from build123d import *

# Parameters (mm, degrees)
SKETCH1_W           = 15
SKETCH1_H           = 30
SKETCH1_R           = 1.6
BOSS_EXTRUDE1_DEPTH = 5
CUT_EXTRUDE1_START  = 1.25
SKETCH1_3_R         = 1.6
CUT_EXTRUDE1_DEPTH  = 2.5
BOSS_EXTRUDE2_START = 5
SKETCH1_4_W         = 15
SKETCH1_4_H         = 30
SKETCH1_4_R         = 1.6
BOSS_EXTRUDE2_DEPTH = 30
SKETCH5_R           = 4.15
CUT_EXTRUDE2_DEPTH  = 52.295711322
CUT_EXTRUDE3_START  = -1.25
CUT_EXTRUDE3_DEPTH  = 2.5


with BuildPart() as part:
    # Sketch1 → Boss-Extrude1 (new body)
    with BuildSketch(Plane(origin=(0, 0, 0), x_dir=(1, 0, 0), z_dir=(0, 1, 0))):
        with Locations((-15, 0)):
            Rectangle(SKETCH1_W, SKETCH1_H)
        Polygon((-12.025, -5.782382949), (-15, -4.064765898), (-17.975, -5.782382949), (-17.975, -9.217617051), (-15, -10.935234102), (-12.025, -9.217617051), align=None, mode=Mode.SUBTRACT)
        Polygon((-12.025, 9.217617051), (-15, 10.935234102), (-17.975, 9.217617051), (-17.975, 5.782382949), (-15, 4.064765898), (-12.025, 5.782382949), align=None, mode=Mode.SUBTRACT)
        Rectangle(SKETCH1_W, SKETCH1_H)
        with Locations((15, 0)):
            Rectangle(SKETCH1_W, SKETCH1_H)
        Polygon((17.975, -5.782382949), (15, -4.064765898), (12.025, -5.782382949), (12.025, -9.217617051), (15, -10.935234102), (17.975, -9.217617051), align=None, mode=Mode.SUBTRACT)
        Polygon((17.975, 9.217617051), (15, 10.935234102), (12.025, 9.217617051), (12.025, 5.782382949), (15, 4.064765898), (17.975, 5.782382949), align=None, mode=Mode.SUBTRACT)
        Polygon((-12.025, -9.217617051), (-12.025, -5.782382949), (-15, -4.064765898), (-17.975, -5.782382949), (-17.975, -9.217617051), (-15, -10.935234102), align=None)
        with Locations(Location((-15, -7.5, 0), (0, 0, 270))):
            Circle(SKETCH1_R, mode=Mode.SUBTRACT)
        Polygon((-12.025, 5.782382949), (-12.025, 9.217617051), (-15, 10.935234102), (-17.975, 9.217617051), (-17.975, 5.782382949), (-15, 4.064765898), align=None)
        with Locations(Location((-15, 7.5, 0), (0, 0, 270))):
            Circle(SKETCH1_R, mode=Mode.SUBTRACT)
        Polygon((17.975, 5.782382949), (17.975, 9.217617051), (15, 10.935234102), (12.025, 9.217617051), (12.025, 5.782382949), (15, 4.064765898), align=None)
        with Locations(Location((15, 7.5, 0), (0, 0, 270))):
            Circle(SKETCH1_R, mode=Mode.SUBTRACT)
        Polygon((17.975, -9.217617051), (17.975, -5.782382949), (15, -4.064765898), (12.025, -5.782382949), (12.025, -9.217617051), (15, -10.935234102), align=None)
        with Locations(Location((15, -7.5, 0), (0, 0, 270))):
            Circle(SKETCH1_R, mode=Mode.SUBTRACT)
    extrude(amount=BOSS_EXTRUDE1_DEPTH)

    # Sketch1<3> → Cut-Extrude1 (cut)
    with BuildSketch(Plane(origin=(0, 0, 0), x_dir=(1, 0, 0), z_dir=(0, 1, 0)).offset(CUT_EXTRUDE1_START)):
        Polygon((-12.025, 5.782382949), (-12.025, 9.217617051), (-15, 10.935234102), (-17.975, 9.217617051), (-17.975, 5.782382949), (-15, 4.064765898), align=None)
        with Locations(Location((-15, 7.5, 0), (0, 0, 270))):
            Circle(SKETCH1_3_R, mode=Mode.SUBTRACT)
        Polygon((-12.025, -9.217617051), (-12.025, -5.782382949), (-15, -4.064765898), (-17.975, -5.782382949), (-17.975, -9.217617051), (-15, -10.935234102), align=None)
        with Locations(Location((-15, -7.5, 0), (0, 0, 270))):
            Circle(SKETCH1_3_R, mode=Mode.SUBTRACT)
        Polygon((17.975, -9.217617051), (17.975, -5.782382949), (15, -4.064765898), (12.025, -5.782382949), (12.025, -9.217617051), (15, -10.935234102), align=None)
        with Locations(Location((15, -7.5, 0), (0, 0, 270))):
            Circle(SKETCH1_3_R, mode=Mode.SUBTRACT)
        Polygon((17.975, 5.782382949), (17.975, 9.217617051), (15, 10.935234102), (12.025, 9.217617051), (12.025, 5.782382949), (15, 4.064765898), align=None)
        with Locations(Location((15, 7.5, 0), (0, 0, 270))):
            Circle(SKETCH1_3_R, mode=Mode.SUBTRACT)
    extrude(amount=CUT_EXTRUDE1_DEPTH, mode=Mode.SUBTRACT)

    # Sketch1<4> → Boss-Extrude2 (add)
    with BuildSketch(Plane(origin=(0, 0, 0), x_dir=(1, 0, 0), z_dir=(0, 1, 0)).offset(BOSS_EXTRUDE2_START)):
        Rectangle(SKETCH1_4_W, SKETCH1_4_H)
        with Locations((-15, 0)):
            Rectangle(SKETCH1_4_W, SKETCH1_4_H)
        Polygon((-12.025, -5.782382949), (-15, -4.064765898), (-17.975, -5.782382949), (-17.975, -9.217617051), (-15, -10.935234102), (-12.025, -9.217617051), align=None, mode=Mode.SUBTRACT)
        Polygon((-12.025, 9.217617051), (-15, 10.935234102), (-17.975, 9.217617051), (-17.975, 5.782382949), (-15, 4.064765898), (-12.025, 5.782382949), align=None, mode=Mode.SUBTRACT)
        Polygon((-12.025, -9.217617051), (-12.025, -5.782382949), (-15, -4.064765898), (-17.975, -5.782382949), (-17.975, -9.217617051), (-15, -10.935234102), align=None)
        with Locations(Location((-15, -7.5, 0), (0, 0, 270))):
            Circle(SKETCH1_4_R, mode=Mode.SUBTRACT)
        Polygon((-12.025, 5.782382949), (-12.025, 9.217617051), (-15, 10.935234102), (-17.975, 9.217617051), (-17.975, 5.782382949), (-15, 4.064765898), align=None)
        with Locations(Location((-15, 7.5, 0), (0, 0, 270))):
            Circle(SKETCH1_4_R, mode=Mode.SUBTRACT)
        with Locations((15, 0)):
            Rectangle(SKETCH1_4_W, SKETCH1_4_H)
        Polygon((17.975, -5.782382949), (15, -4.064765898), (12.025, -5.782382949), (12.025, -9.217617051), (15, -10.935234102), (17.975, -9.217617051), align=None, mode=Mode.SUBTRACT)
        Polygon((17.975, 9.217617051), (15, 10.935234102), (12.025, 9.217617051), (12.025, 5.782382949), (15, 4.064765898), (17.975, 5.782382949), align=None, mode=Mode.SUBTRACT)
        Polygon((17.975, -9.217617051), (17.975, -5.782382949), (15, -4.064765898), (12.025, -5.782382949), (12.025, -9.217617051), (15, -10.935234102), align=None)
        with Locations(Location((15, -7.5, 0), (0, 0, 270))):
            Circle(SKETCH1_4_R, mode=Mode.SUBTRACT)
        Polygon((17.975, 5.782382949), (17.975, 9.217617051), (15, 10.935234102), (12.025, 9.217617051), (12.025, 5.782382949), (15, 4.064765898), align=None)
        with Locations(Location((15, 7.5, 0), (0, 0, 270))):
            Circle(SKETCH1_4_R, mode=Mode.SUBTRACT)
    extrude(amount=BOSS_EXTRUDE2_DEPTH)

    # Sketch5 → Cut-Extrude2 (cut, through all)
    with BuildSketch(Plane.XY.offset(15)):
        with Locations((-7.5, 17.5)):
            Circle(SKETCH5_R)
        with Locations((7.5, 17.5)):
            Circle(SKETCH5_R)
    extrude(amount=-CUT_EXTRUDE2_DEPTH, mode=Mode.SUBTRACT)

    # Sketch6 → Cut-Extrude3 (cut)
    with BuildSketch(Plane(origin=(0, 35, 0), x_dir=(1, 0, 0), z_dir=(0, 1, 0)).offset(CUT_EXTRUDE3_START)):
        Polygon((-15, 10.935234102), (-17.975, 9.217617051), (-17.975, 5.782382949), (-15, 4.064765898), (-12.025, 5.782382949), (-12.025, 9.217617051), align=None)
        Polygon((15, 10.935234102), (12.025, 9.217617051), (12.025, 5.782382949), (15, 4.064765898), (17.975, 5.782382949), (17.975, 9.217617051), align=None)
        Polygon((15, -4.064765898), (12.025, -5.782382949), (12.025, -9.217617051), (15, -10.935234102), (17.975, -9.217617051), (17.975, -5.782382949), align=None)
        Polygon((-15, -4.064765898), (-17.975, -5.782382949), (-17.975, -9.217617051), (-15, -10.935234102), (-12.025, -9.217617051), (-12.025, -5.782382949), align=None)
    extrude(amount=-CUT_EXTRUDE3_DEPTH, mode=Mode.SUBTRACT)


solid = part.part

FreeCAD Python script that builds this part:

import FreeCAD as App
import Part
import Sketcher

V = App.Vector
Q = App.Units.Quantity


def add_polygon(sketch, points):
    """Adds a closed chain of lines whose ends are joined by coincident constraints."""
    first, n = sketch.GeometryCount, len(points)
    for a, b in zip(points, points[1:] + points[:1]):
        sketch.addGeometry(Part.LineSegment(App.Vector(*a, 0), App.Vector(*b, 0)), False)
    for i in range(n):
        sketch.addConstraint(Sketcher.Constraint("Coincident", first + i, 2, first + (i + 1) % n, 1))

doc = App.newDocument("Part")
body = doc.addObject("PartDesign::Body", "Body")

# Sketch on XZ plane
sketch1 = doc.addObject("Sketcher::SketchObject", "Sketch")
body.addObject(sketch1)
sketch1.AttachmentSupport = (doc.XZ_Plane, [""])
sketch1.MapMode = "FlatFace"
add_polygon(sketch1, [(-22.5, -15), (-22.5, 15), (22.5, 15), (22.5, -15)])  # lines 0-3
sketch1.addGeometry(Part.Circle(V(-15, 7.5, 0), V(0, 0, 1), 1.6), False)  # 4
sketch1.addGeometry(Part.Circle(V(15, 7.5, 0), V(0, 0, 1), 1.6), False)  # 5
sketch1.addGeometry(Part.Circle(V(-15, -7.5, 0), V(0, 0, 1), 1.6), False)  # 6
sketch1.addGeometry(Part.Circle(V(15, -7.5, 0), V(0, 0, 1), 1.6), False)  # 7
sketch1.addConstraint(Sketcher.Constraint("Vertical", 0))
sketch1.addConstraint(Sketcher.Constraint("Horizontal", 1))
sketch1.addConstraint(Sketcher.Constraint("Vertical", 2))
sketch1.addConstraint(Sketcher.Constraint("Horizontal", 3))
sketch1.addConstraint(Sketcher.Constraint("Equal", 4, 5))
sketch1.addConstraint(Sketcher.Constraint("Equal", 5, 6))
sketch1.addConstraint(Sketcher.Constraint("Equal", 6, 7))
sketch1.addConstraint(Sketcher.Constraint("Symmetric", 5, 3, 6, 3, -1, 1))
sketch1.addConstraint(Sketcher.Constraint("Symmetric", 4, 3, 7, 3, -1, 1))
sketch1.addConstraint(Sketcher.Constraint("Symmetric", 0, 2, 2, 2, -1, 1))
sketch1.addConstraint(Sketcher.Constraint("Symmetric", 4, 3, 5, 3, -2))
sketch1.addConstraint(Sketcher.Constraint("Diameter", 4, Q("3.2 mm")))
sketch1.addConstraint(Sketcher.Constraint("DistanceX", 1, 1, 1, 2, Q("45 mm")))
sketch1.addConstraint(Sketcher.Constraint("DistanceY", 0, 1, 0, 2, Q("30 mm")))
sketch1.addConstraint(Sketcher.Constraint("DistanceX", 4, 3, -1, 1, Q("15 mm")))
sketch1.addConstraint(Sketcher.Constraint("DistanceY", 6, 3, 4, 3, Q("15 mm")))
pad1 = doc.addObject("PartDesign::Pad", "Pad")
body.addObject(pad1)
pad1.Profile = sketch1
pad1.Length = 5
pad1.Reversed = True

# Sketch on XZ plane
sketch2 = doc.addObject("Sketcher::SketchObject", "Sketch001")
body.addObject(sketch2)
sketch2.AttachmentSupport = (doc.XZ_Plane, [""])
sketch2.MapMode = "FlatFace"
sketch2.AttachmentOffset = App.Placement(V(0, 0, -1.25), App.Rotation())
add_polygon(sketch2, [(-12.025, -5.782383), (-12.025, -9.217617), (-15, -10.935234), (-17.975, -9.217617), (-17.975, -5.782383), (-15, -4.064766)])  # lines 0-5
sketch2.addGeometry(Part.Circle(V(-15, -7.5, 0), V(0, 0, 1), 1.6), False)  # 6
add_polygon(sketch2, [(-12.025, 9.217617), (-12.025, 5.782383), (-15, 4.064766), (-17.975, 5.782383), (-17.975, 9.217617), (-15, 10.935234)])  # lines 7-12
sketch2.addGeometry(Part.Circle(V(-15, 7.5, 0), V(0, 0, 1), 1.6), False)  # 13
add_polygon(sketch2, [(17.975, 9.217617), (17.975, 5.782383), (15, 4.064766), (12.025, 5.782383), (12.025, 9.217617), (15, 10.935234)])  # lines 14-19
sketch2.addGeometry(Part.Circle(V(15, 7.5, 0), V(0, 0, 1), 1.6), False)  # 20
add_polygon(sketch2, [(17.975, -5.782383), (17.975, -9.217617), (15, -10.935234), (12.025, -9.217617), (12.025, -5.782383), (15, -4.064766)])  # lines 21-26
sketch2.addGeometry(Part.Circle(V(15, -7.5, 0), V(0, 0, 1), 1.6), False)  # 27
sketch2.addConstraint(Sketcher.Constraint("Vertical", 0))
sketch2.addConstraint(Sketcher.Constraint("Vertical", 3))
sketch2.addConstraint(Sketcher.Constraint("Vertical", 7))
sketch2.addConstraint(Sketcher.Constraint("Vertical", 10))
sketch2.addConstraint(Sketcher.Constraint("Vertical", 14))
sketch2.addConstraint(Sketcher.Constraint("Vertical", 17))
sketch2.addConstraint(Sketcher.Constraint("Vertical", 21))
sketch2.addConstraint(Sketcher.Constraint("Vertical", 24))
sketch2.addConstraint(Sketcher.Constraint("Equal", 6, 13))
sketch2.addConstraint(Sketcher.Constraint("Equal", 13, 20))
sketch2.addConstraint(Sketcher.Constraint("Equal", 20, 27))
sketch2.addConstraint(Sketcher.Constraint("Symmetric", 6, 3, 20, 3, -1, 1))
sketch2.addConstraint(Sketcher.Constraint("Symmetric", 13, 3, 27, 3, -1, 1))
sketch2.addConstraint(Sketcher.Constraint("Symmetric", 3, 2, 14, 2, -1, 1))
sketch2.addConstraint(Sketcher.Constraint("Symmetric", 4, 2, 15, 2, -1, 1))
sketch2.addConstraint(Sketcher.Constraint("Symmetric", 5, 2, 16, 2, -1, 1))
sketch2.addConstraint(Sketcher.Constraint("Symmetric", 1, 2, 18, 2, -1, 1))
sketch2.addConstraint(Sketcher.Constraint("Symmetric", 10, 2, 21, 2, -1, 1))
sketch2.addConstraint(Sketcher.Constraint("Symmetric", 11, 2, 22, 2, -1, 1))
sketch2.addConstraint(Sketcher.Constraint("Symmetric", 12, 2, 23, 2, -1, 1))
sketch2.addConstraint(Sketcher.Constraint("Symmetric", 8, 2, 25, 2, -1, 1))
sketch2.addConstraint(Sketcher.Constraint("Symmetric", 13, 3, 20, 3, -2))
sketch2.addConstraint(Sketcher.Constraint("Symmetric", 9, 2, 14, 2, -2))
sketch2.addConstraint(Sketcher.Constraint("Symmetric", 8, 2, 15, 2, -2))
sketch2.addConstraint(Sketcher.Constraint("Symmetric", 7, 2, 16, 2, -2))
sketch2.addConstraint(Sketcher.Constraint("Symmetric", 11, 2, 18, 2, -2))
sketch2.addConstraint(Sketcher.Constraint("Parallel", 1, 4))
sketch2.addConstraint(Sketcher.Constraint("Parallel", 2, 5))
sketch2.addConstraint(Sketcher.Constraint("Parallel", 4, 8))
sketch2.addConstraint(Sketcher.Constraint("Parallel", 8, 11))
sketch2.addConstraint(Sketcher.Constraint("Parallel", 9, 12))
sketch2.addConstraint(Sketcher.Constraint("Parallel", 15, 18))
sketch2.addConstraint(Sketcher.Constraint("Parallel", 16, 19))
sketch2.addConstraint(Sketcher.Constraint("Parallel", 22, 25))
sketch2.addConstraint(Sketcher.Constraint("Parallel", 23, 26))
sketch2.addConstraint(Sketcher.Constraint("Horizontal", 0, 2, 2, 2))
sketch2.addConstraint(Sketcher.Constraint("Horizontal", 3, 2, 5, 2))
sketch2.addConstraint(Sketcher.Constraint("Vertical", 13, 3, 1, 2))
sketch2.addConstraint(Sketcher.Constraint("Diameter", 6, Q("3.2 mm")))
sketch2.addConstraint(Sketcher.Constraint("Angle", 1, Q("-150 deg")))
sketch2.addConstraint(Sketcher.Constraint("DistanceX", 6, 3, -1, 1, Q("15 mm")))
sketch2.addConstraint(Sketcher.Constraint("DistanceY", 6, 3, 13, 3, Q("15 mm")))
sketch2.addConstraint(Sketcher.Constraint("DistanceY", 21, 2, 14, 2, Q("15 mm")))
sketch2.addConstraint(Sketcher.Constraint("DistanceX", 2, 2, 0, 2, Q("5.95 mm")))
sketch2.addConstraint(Sketcher.Constraint("DistanceY", 0, 2, 0, 1, Q("3.435234 mm")))
pocket1 = doc.addObject("PartDesign::Pocket", "Pocket")
body.addObject(pocket1)
pocket1.Profile = sketch2
pocket1.Length = 2.5

# Sketch on XZ plane
sketch3 = doc.addObject("Sketcher::SketchObject", "Sketch002")
body.addObject(sketch3)
sketch3.AttachmentSupport = (doc.XZ_Plane, [""])
sketch3.MapMode = "FlatFace"
sketch3.AttachmentOffset = App.Placement(V(0, 0, -5), App.Rotation())
add_polygon(sketch3, [(-22.5, 15), (22.5, 15), (22.5, -15), (-22.5, -15)])  # lines 0-3
sketch3.addGeometry(Part.Circle(V(-15, 7.5, 0), V(0, 0, 1), 1.6), False)  # 4
sketch3.addGeometry(Part.Circle(V(15, 7.5, 0), V(0, 0, 1), 1.6), False)  # 5
sketch3.addGeometry(Part.Circle(V(-15, -7.5, 0), V(0, 0, 1), 1.6), False)  # 6
sketch3.addGeometry(Part.Circle(V(15, -7.5, 0), V(0, 0, 1), 1.6), False)  # 7
sketch3.addConstraint(Sketcher.Constraint("Horizontal", 0))
sketch3.addConstraint(Sketcher.Constraint("Vertical", 1))
sketch3.addConstraint(Sketcher.Constraint("Horizontal", 2))
sketch3.addConstraint(Sketcher.Constraint("Vertical", 3))
sketch3.addConstraint(Sketcher.Constraint("Equal", 4, 5))
sketch3.addConstraint(Sketcher.Constraint("Equal", 5, 6))
sketch3.addConstraint(Sketcher.Constraint("Equal", 6, 7))
sketch3.addConstraint(Sketcher.Constraint("Symmetric", 5, 3, 6, 3, -1, 1))
sketch3.addConstraint(Sketcher.Constraint("Symmetric", 4, 3, 7, 3, -1, 1))
sketch3.addConstraint(Sketcher.Constraint("Symmetric", 0, 2, 2, 2, -1, 1))
sketch3.addConstraint(Sketcher.Constraint("Symmetric", 4, 3, 5, 3, -2))
sketch3.addConstraint(Sketcher.Constraint("Diameter", 4, Q("3.2 mm")))
sketch3.addConstraint(Sketcher.Constraint("DistanceX", 0, 1, 0, 2, Q("45 mm")))
sketch3.addConstraint(Sketcher.Constraint("DistanceY", 1, 2, 1, 1, Q("30 mm")))
sketch3.addConstraint(Sketcher.Constraint("DistanceX", 4, 3, -1, 1, Q("15 mm")))
sketch3.addConstraint(Sketcher.Constraint("DistanceY", 6, 3, 4, 3, Q("15 mm")))
pad2 = doc.addObject("PartDesign::Pad", "Pad001")
body.addObject(pad2)
pad2.Profile = sketch3
pad2.Length = 30
pad2.Reversed = True

# Sketch on XY plane
sketch4 = doc.addObject("Sketcher::SketchObject", "Sketch003")
body.addObject(sketch4)
sketch4.AttachmentSupport = (doc.XY_Plane, [""])
sketch4.MapMode = "FlatFace"
sketch4.AttachmentOffset = App.Placement(V(0, 0, 15), App.Rotation())
sketch4.addGeometry(Part.Circle(V(-7.5, 17.5, 0), V(0, 0, 1), 4.15), False)
sketch4.addGeometry(Part.Circle(V(7.5, 17.5, 0), V(0, 0, 1), 4.15), False)
sketch4.addConstraint(Sketcher.Constraint("Equal", 0, 1))
sketch4.addConstraint(Sketcher.Constraint("Symmetric", 0, 3, 1, 3, -2))
sketch4.addConstraint(Sketcher.Constraint("Diameter", 0, Q("8.3 mm")))
sketch4.addConstraint(Sketcher.Constraint("DistanceX", 0, 3, 1, 3, Q("15 mm")))
sketch4.addConstraint(Sketcher.Constraint("DistanceY", -1, 1, 0, 3, Q("17.5 mm")))
pocket2 = doc.addObject("PartDesign::Pocket", "Pocket001")
body.addObject(pocket2)
pocket2.Profile = sketch4
pocket2.Type = "ThroughAll"

# Sketch on XZ plane
sketch5 = doc.addObject("Sketcher::SketchObject", "Sketch004")
body.addObject(sketch5)
sketch5.AttachmentSupport = (doc.XZ_Plane, [""])
sketch5.MapMode = "FlatFace"
sketch5.AttachmentOffset = App.Placement(V(0, 0, -33.75), App.Rotation())
add_polygon(sketch5, [(-15, -10.935234), (-17.975, -9.217617), (-17.975, -5.782383), (-15, -4.064766), (-12.025, -5.782383), (-12.025, -9.217617)])  # lines 0-5
add_polygon(sketch5, [(15, -10.935234), (12.025, -9.217617), (12.025, -5.782383), (15, -4.064766), (17.975, -5.782383), (17.975, -9.217617)])  # lines 6-11
add_polygon(sketch5, [(15, 4.064766), (12.025, 5.782383), (12.025, 9.217617), (15, 10.935234), (17.975, 9.217617), (17.975, 5.782383)])  # lines 12-17
add_polygon(sketch5, [(-15, 4.064766), (-17.975, 5.782383), (-17.975, 9.217617), (-15, 10.935234), (-12.025, 9.217617), (-12.025, 5.782383)])  # lines 18-23
sketch5.addConstraint(Sketcher.Constraint("Vertical", 1))
sketch5.addConstraint(Sketcher.Constraint("Vertical", 4))
sketch5.addConstraint(Sketcher.Constraint("Vertical", 7))
sketch5.addConstraint(Sketcher.Constraint("Vertical", 10))
sketch5.addConstraint(Sketcher.Constraint("Vertical", 13))
sketch5.addConstraint(Sketcher.Constraint("Vertical", 16))
sketch5.addConstraint(Sketcher.Constraint("Vertical", 19))
sketch5.addConstraint(Sketcher.Constraint("Vertical", 22))
sketch5.addConstraint(Sketcher.Constraint("Symmetric", 3, 2, 12, 2, -1, 1))
sketch5.addConstraint(Sketcher.Constraint("Symmetric", 5, 2, 14, 2, -1, 1))
sketch5.addConstraint(Sketcher.Constraint("Symmetric", 0, 2, 15, 2, -1, 1))
sketch5.addConstraint(Sketcher.Constraint("Symmetric", 2, 2, 17, 2, -1, 1))
sketch5.addConstraint(Sketcher.Constraint("Symmetric", 9, 2, 18, 2, -1, 1))
sketch5.addConstraint(Sketcher.Constraint("Symmetric", 11, 2, 20, 2, -1, 1))
sketch5.addConstraint(Sketcher.Constraint("Symmetric", 6, 2, 21, 2, -1, 1))
sketch5.addConstraint(Sketcher.Constraint("Symmetric", 8, 2, 23, 2, -1, 1))
sketch5.addConstraint(Sketcher.Constraint("Symmetric", 4, 2, 6, 2, -2))
sketch5.addConstraint(Sketcher.Constraint("Symmetric", 2, 2, 8, 2, -2))
sketch5.addConstraint(Sketcher.Constraint("Symmetric", 1, 2, 9, 2, -2))
sketch5.addConstraint(Sketcher.Constraint("Symmetric", 5, 2, 11, 2, -2))
sketch5.addConstraint(Sketcher.Constraint("Parallel", 0, 3))
sketch5.addConstraint(Sketcher.Constraint("Parallel", 2, 5))
sketch5.addConstraint(Sketcher.Constraint("Parallel", 3, 6))
sketch5.addConstraint(Sketcher.Constraint("Parallel", 5, 8))
sketch5.addConstraint(Sketcher.Constraint("Parallel", 8, 11))
sketch5.addConstraint(Sketcher.Constraint("Parallel", 11, 14))
sketch5.addConstraint(Sketcher.Constraint("Parallel", 14, 17))
sketch5.addConstraint(Sketcher.Constraint("Parallel", 17, 20))
sketch5.addConstraint(Sketcher.Constraint("Parallel", 20, 23))
sketch5.addConstraint(Sketcher.Constraint("Horizontal", 1, 2, 3, 2))
sketch5.addConstraint(Sketcher.Constraint("Horizontal", 0, 2, 4, 2))
sketch5.addConstraint(Sketcher.Constraint("Angle", 0, Q("150 deg")))
sketch5.addConstraint(Sketcher.Constraint("DistanceX", 2, 2, -1, 1, Q("15 mm")))
sketch5.addConstraint(Sketcher.Constraint("DistanceY", 6, 2, 12, 2, Q("15 mm")))
sketch5.addConstraint(Sketcher.Constraint("DistanceX", 1, 2, 3, 2, Q("5.95 mm")))
sketch5.addConstraint(Sketcher.Constraint("DistanceY", 1, 1, 1, 2, Q("3.435234 mm")))
pocket3 = doc.addObject("PartDesign::Pocket", "Pocket002")
body.addObject(pocket3)
pocket3.Profile = sketch5
pocket3.Length = 2.5
pocket3.Reversed = True

doc.recompute()
